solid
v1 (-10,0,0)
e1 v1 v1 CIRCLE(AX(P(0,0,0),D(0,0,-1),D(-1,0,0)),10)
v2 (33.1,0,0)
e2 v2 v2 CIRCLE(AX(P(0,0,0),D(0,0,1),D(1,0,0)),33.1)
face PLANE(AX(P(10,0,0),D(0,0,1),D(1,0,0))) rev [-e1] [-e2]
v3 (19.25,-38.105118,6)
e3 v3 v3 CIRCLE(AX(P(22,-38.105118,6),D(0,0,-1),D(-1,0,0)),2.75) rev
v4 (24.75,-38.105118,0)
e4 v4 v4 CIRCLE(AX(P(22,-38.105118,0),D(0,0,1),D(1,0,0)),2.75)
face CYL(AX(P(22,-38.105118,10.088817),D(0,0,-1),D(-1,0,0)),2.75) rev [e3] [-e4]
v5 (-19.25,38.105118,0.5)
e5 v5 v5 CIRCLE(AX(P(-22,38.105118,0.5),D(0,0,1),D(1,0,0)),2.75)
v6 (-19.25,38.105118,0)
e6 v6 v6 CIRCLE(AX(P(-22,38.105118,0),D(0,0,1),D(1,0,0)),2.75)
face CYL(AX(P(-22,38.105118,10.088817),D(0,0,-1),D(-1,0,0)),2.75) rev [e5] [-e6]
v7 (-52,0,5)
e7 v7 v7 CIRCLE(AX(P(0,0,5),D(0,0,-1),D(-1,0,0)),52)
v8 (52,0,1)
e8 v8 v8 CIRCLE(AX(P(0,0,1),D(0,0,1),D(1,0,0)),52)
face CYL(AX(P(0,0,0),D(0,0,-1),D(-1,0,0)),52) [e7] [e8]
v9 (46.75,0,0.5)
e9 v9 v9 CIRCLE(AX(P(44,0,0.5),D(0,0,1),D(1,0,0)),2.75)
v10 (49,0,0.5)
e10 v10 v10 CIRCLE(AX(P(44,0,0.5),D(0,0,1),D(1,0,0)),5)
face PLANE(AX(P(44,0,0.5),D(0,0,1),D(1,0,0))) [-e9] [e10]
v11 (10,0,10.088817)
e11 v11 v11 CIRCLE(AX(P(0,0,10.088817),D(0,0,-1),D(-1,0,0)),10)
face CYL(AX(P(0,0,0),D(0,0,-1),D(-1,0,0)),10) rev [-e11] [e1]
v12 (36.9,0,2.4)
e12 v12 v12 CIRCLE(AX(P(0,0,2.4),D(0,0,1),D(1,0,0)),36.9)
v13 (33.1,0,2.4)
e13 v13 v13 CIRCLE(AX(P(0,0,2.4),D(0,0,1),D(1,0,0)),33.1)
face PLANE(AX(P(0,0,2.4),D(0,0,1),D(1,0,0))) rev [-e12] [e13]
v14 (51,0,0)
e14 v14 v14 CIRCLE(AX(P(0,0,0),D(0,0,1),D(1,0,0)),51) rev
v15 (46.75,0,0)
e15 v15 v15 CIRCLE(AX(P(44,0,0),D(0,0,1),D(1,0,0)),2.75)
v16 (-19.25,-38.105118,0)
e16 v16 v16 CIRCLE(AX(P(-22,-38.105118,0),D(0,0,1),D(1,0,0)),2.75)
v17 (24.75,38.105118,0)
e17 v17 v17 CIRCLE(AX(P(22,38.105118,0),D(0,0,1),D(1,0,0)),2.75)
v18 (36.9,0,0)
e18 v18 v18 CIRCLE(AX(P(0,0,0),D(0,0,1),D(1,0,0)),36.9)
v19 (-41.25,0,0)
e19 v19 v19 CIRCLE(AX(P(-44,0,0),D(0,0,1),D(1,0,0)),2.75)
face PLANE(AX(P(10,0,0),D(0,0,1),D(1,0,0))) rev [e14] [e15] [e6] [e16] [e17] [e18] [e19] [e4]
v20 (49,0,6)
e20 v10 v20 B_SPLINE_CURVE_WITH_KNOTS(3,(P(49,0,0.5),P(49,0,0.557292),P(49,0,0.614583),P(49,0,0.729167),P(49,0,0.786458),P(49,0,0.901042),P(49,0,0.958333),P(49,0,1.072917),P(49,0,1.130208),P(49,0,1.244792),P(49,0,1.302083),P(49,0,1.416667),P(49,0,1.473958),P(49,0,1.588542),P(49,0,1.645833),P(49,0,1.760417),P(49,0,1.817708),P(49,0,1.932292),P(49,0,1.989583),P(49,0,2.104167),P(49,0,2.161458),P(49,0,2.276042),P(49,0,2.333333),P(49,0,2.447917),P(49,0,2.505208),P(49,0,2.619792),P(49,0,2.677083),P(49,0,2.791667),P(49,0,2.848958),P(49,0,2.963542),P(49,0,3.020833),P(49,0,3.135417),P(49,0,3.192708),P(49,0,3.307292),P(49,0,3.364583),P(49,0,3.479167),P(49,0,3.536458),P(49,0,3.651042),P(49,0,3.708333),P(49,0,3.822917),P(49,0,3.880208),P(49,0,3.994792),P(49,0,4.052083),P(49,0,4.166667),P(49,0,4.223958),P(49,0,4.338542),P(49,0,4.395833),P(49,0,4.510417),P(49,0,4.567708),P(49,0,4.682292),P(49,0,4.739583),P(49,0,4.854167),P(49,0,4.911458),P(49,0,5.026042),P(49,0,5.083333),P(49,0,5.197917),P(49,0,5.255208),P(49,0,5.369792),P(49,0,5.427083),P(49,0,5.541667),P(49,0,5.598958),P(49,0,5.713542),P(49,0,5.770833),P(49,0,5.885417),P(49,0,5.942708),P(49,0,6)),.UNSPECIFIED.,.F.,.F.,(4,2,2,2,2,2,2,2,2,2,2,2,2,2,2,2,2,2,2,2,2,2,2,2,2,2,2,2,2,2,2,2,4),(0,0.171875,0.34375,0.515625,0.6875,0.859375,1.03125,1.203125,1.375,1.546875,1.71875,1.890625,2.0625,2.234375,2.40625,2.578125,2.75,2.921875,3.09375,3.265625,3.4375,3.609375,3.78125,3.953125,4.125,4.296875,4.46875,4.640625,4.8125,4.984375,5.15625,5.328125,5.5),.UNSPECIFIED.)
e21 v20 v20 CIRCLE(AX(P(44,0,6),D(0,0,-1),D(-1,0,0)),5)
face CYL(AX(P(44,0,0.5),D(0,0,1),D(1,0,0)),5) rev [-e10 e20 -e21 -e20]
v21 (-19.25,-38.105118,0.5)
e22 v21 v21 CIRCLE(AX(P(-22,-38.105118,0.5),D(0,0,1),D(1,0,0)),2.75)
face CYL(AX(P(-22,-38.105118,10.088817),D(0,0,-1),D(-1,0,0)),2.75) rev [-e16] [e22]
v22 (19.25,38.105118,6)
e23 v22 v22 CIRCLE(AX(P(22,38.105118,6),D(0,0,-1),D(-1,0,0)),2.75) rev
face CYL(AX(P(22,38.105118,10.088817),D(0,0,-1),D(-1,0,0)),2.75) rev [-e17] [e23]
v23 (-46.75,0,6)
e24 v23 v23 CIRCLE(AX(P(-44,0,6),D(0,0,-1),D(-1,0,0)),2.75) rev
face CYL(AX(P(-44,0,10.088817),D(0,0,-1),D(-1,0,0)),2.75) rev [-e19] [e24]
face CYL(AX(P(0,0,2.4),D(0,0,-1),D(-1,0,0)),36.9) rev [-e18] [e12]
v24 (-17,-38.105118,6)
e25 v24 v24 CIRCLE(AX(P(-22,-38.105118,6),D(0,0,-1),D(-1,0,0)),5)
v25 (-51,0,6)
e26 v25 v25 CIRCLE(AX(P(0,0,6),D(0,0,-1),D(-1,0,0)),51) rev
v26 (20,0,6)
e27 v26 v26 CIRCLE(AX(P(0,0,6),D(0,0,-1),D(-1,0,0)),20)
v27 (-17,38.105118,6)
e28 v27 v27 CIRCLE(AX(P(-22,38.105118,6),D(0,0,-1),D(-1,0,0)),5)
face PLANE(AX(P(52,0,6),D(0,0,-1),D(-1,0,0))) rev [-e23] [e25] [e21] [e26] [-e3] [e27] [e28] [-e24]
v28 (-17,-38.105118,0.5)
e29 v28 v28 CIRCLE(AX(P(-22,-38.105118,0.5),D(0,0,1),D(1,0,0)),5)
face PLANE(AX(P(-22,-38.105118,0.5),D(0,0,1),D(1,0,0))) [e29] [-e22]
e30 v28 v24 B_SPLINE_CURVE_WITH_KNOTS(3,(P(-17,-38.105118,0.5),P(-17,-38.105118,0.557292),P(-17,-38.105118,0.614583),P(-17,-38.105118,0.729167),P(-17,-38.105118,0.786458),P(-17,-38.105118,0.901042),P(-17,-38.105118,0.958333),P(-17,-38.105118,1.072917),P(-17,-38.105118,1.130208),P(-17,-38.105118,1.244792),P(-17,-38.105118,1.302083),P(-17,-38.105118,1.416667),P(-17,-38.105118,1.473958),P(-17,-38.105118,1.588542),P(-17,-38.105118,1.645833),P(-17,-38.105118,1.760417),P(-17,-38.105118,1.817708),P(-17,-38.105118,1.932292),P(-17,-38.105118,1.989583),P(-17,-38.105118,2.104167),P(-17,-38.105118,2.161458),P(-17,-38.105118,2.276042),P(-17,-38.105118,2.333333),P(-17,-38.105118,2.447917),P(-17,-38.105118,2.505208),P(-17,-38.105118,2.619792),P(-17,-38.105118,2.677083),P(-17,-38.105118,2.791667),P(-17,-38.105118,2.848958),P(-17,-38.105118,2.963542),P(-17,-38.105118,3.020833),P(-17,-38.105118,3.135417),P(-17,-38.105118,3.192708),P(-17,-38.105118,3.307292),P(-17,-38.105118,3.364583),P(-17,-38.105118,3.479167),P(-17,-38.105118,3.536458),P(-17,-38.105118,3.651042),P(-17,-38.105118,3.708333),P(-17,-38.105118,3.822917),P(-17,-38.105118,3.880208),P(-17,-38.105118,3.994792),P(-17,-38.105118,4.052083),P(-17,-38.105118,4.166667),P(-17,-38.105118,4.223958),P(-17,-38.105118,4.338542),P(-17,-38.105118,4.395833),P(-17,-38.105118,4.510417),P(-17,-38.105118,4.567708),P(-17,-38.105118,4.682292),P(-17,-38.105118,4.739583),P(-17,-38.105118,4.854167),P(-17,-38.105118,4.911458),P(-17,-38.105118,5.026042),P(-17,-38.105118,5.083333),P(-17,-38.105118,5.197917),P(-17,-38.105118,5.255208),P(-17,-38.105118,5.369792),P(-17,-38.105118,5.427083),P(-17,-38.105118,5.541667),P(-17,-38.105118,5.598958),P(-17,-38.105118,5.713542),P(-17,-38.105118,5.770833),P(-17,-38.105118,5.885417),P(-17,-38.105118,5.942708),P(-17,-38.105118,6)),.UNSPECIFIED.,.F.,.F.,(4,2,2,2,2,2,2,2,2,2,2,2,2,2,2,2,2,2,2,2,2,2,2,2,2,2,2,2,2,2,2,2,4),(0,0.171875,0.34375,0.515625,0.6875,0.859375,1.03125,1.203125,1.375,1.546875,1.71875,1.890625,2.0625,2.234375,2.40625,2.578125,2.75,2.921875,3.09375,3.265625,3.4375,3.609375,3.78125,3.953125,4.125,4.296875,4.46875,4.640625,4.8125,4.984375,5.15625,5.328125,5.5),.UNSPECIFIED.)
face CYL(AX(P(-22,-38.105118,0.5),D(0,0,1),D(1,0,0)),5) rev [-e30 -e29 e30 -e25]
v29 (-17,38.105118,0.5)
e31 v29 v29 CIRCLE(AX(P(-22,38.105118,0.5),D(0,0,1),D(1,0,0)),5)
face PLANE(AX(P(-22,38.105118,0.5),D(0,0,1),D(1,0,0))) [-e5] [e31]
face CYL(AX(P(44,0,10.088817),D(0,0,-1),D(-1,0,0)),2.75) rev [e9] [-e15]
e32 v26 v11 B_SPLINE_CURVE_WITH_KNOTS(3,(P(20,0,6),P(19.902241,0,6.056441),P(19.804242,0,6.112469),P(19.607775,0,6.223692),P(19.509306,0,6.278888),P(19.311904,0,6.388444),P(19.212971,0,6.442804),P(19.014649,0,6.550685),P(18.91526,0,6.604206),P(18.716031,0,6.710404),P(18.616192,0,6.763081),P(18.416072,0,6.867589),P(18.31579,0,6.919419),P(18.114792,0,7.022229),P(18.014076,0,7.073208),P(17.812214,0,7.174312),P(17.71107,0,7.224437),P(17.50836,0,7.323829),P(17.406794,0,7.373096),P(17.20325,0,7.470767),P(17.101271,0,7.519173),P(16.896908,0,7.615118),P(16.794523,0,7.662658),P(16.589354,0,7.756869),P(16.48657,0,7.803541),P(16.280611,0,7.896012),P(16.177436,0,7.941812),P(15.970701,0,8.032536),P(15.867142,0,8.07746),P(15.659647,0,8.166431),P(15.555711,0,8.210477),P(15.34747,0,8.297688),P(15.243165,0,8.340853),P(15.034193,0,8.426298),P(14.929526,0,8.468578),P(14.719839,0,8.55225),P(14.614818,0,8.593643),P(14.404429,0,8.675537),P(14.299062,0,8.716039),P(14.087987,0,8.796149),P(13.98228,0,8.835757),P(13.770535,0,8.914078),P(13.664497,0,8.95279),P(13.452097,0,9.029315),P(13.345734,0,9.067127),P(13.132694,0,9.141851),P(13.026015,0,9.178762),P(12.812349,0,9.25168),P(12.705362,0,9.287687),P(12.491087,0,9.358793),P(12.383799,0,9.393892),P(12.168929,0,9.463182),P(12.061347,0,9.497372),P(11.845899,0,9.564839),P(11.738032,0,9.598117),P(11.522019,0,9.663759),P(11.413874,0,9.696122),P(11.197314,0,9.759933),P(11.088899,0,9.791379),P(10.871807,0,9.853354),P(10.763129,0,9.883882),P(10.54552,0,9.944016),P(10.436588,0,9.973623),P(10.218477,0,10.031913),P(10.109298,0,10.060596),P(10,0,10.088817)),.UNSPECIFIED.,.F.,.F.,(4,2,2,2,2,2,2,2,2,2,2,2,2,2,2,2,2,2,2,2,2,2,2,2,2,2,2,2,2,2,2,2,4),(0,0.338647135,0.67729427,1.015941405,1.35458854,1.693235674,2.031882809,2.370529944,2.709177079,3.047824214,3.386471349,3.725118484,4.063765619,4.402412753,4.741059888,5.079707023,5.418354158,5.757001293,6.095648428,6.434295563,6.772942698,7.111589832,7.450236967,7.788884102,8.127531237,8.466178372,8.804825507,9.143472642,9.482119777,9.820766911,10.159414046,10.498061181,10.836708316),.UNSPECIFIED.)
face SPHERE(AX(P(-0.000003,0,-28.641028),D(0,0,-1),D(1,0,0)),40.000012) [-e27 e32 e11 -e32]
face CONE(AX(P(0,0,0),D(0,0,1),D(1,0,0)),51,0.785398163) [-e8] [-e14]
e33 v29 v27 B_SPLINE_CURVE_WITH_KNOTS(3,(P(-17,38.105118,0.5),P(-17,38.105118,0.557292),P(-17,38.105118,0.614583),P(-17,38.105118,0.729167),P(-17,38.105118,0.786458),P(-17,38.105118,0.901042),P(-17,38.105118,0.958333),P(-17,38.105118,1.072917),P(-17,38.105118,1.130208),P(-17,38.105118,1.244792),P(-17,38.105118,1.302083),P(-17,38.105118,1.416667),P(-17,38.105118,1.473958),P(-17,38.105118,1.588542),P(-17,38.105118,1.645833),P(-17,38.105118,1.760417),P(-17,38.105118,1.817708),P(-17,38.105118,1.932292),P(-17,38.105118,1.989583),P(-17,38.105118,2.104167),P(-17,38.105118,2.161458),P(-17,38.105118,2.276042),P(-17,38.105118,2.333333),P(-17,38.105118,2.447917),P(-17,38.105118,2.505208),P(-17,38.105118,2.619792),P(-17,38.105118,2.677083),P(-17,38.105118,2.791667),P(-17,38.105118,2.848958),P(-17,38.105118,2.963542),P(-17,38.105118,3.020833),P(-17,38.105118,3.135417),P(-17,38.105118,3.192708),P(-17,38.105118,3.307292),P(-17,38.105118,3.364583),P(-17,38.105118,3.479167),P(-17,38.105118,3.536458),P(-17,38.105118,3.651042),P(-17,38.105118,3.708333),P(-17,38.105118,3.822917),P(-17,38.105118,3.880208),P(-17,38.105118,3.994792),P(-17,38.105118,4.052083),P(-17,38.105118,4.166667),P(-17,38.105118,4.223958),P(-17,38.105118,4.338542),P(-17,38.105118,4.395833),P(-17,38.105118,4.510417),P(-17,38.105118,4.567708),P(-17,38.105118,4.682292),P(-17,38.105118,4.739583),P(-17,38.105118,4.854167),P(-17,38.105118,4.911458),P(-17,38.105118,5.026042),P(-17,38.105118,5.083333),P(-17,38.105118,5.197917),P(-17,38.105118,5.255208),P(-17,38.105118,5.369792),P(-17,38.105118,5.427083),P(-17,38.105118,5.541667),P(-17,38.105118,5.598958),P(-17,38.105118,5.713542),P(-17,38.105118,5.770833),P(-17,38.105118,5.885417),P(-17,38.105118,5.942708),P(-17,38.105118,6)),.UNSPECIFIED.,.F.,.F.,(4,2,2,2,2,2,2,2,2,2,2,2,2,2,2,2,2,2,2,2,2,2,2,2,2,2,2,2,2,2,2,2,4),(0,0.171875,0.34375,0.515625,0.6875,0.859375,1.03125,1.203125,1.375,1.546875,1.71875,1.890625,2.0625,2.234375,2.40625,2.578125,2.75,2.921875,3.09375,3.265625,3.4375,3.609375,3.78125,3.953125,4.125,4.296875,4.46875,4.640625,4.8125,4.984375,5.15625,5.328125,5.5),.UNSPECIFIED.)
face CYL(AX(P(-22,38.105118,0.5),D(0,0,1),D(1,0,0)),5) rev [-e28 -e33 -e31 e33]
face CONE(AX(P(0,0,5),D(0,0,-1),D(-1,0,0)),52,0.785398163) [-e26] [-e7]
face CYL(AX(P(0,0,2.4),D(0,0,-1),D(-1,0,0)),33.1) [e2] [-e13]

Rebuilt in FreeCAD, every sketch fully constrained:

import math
import FreeCAD as App
import Part
import Sketcher
from FreeCAD import Vector


def edges_at(feature, points):
    """Names of the edges that pass closest to the given points."""
    edges = feature.Shape.Edges
    near = lambda p: min(range(len(edges)), key=lambda i: edges[i].distToShape(Part.Vertex(*p))[0])
    return sorted({f"Edge{near(p) + 1}" for p in points})

doc = App.newDocument("Part")
body = doc.addObject("PartDesign::Body", "Body")

# Sketch on XZ plane
sketch1 = body.newObject("Sketcher::SketchObject", "Sketch")
sketch1.AttachmentSupport = (doc.getObject("XZ_Plane"), [""])
sketch1.MapMode = "FlatFace"
sketch1.addGeometry(Part.LineSegment(Vector(52, 0, 0), Vector(10, 0, 0)), False)
sketch1.addGeometry(Part.LineSegment(Vector(10, 0, 0), Vector(10, 10, 0)), False)
sketch1.addGeometry(Part.ArcOfCircle(Part.Circle(Vector(0, -29, 0), Vector(0, 0, 1), 40), math.radians(60), math.radians(75.52)), False)
sketch1.addGeometry(Part.LineSegment(Vector(20, 6, 0), Vector(52, 6, 0)), False)
sketch1.addGeometry(Part.LineSegment(Vector(52, 6, 0), Vector(52, 0, 0)), False)
sketch1.addConstraint(Sketcher.Constraint("Coincident", 0, 2, 1, 1))
sketch1.addConstraint(Sketcher.Constraint("Coincident", 1, 2, 2, 2))
sketch1.addConstraint(Sketcher.Constraint("Coincident", 2, 1, 3, 1))
sketch1.addConstraint(Sketcher.Constraint("Coincident", 3, 2, 4, 1))
sketch1.addConstraint(Sketcher.Constraint("Coincident", 4, 2, 0, 1))
sketch1.addConstraint(Sketcher.Constraint("Horizontal", 0))
sketch1.addConstraint(Sketcher.Constraint("Vertical", 1))
sketch1.addConstraint(Sketcher.Constraint("Horizontal", 3))
sketch1.addConstraint(Sketcher.Constraint("Vertical", 4))
sketch1.addConstraint(Sketcher.Constraint("PointOnObject", 0, 2, -1))
sketch1.addConstraint(Sketcher.Constraint("DistanceX", 0, 2, 0, 1, 42.0))
sketch1.addConstraint(Sketcher.Constraint("DistanceX", 3, 1, 3, 2, 32.0))
sketch1.addConstraint(Sketcher.Constraint("DistanceY", 4, 2, 4, 1, 6.0))
sketch1.addConstraint(Sketcher.Constraint("DistanceX", -1, 1, 0, 2, 10.0))
sketch1.addConstraint(Sketcher.Constraint("Radius", 2, 40.000012))
sketch1.addConstraint(Sketcher.Constraint("DistanceY", 1, 1, 1, 2, 10.088817))
revolution = body.newObject("PartDesign::Revolution", "Revolution")
revolution.Profile = sketch1
revolution.ReferenceAxis = (sketch1, ["V_Axis"])
revolution.Angle = 360

# Sketch on XY plane
sketch2 = body.newObject("Sketcher::SketchObject", "Sketch001")
sketch2.AttachmentSupport = (doc.getObject("XY_Plane"), [""])
sketch2.MapMode = "FlatFace"
sketch2.addGeometry(Part.Circle(Vector(44, 0, 0), Vector(0, 0, 1), 2.8), False)
sketch2.addConstraint(Sketcher.Constraint("PointOnObject", 0, 3, -1))
sketch2.addConstraint(Sketcher.Constraint("Diameter", 0, 5.5))
sketch2.addConstraint(Sketcher.Constraint("DistanceX", -1, 1, 0, 3, 44.0))
pocket1 = body.newObject("PartDesign::Pocket", "Pocket")
pocket1.Profile = sketch2
pocket1.Type = "ThroughAll"
pocket1.Reversed = True

# Sketch on XY plane
sketch3 = body.newObject("Sketcher::SketchObject", "Sketch002")
sketch3.AttachmentSupport = (doc.getObject("XY_Plane"), [""])
sketch3.MapMode = "FlatFace"
sketch3.addGeometry(Part.Circle(Vector(-22, 38.1, 0), Vector(0, 0, 1), 2.8), False)
sketch3.addConstraint(Sketcher.Constraint("Diameter", 0, 5.5))
sketch3.addConstraint(Sketcher.Constraint("DistanceX", 0, 3, -1, 1, 22.0))
sketch3.addConstraint(Sketcher.Constraint("DistanceY", -1, 1, 0, 3, 38.105118))
pocket2 = body.newObject("PartDesign::Pocket", "Pocket001")
pocket2.Profile = sketch3
pocket2.Type = "ThroughAll"
pocket2.Reversed = True

# Sketch on XY plane
sketch4 = body.newObject("Sketcher::SketchObject", "Sketch003")
sketch4.AttachmentSupport = (doc.getObject("XY_Plane"), [""])
sketch4.MapMode = "FlatFace"
sketch4.addGeometry(Part.Circle(Vector(-22, -38.1, 0), Vector(0, 0, 1), 2.8), False)
sketch4.addConstraint(Sketcher.Constraint("Diameter", 0, 5.5))
sketch4.addConstraint(Sketcher.Constraint("DistanceX", 0, 3, -1, 1, 22.0))
sketch4.addConstraint(Sketcher.Constraint("DistanceY", 0, 3, -1, 1, 38.105118))
pocket3 = body.newObject("PartDesign::Pocket", "Pocket002")
pocket3.Profile = sketch4
pocket3.Type = "ThroughAll"
pocket3.Reversed = True

# Sketch on XY plane
sketch5 = body.newObject("Sketcher::SketchObject", "Sketch004")
sketch5.AttachmentSupport = (doc.getObject("XY_Plane"), [""])
sketch5.MapMode = "FlatFace"
sketch5.addGeometry(Part.Circle(Vector(22, 38.1, 0), Vector(0, 0, 1), 2.8), False)
sketch5.addConstraint(Sketcher.Constraint("Diameter", 0, 5.5))
sketch5.addConstraint(Sketcher.Constraint("DistanceX", -1, 1, 0, 3, 22.0))
sketch5.addConstraint(Sketcher.Constraint("DistanceY", -1, 1, 0, 3, 38.105118))
pocket4 = body.newObject("PartDesign::Pocket", "Pocket003")
pocket4.Profile = sketch5
pocket4.Type = "ThroughAll"
pocket4.Reversed = True

# Sketch on XY plane
sketch6 = body.newObject("Sketcher::SketchObject", "Sketch005")
sketch6.AttachmentSupport = (doc.getObject("XY_Plane"), [""])
sketch6.MapMode = "FlatFace"
sketch6.addGeometry(Part.Circle(Vector(-44, 0, 0), Vector(0, 0, 1), 2.8), False)
sketch6.addConstraint(Sketcher.Constraint("PointOnObject", 0, 3, -1))
sketch6.addConstraint(Sketcher.Constraint("Diameter", 0, 5.5))
sketch6.addConstraint(Sketcher.Constraint("DistanceX", 0, 3, -1, 1, 44.0))
pocket5 = body.newObject("PartDesign::Pocket", "Pocket004")
pocket5.Profile = sketch6
pocket5.Type = "ThroughAll"
pocket5.Reversed = True

# Sketch on XY plane
sketch7 = body.newObject("Sketcher::SketchObject", "Sketch006")
sketch7.AttachmentSupport = (doc.getObject("XY_Plane"), [""])
sketch7.MapMode = "FlatFace"
sketch7.addGeometry(Part.Circle(Vector(22, -38.1, 0), Vector(0, 0, 1), 2.8), False)
sketch7.addConstraint(Sketcher.Constraint("Diameter", 0, 5.5))
sketch7.addConstraint(Sketcher.Constraint("DistanceX", -1, 1, 0, 3, 22.0))
sketch7.addConstraint(Sketcher.Constraint("DistanceY", 0, 3, -1, 1, 38.105118))
pocket6 = body.newObject("PartDesign::Pocket", "Pocket005")
pocket6.Profile = sketch7
pocket6.Type = "ThroughAll"
pocket6.Reversed = True

# Sketch on XY plane
sketch8 = body.newObject("Sketcher::SketchObject", "Sketch007")
sketch8.AttachmentSupport = (doc.getObject("XY_Plane"), [""])
sketch8.MapMode = "FlatFace"
sketch8.AttachmentOffset = App.Placement(Vector(0, 0, 3.75), App.Rotation())
sketch8.addGeometry(Part.Circle(Vector(44, 0, 0), Vector(0, 0, 1), 5), False)
sketch8.addConstraint(Sketcher.Constraint("PointOnObject", 0, 3, -1))
sketch8.addConstraint(Sketcher.Constraint("Diameter", 0, 10.0))
sketch8.addConstraint(Sketcher.Constraint("DistanceX", -1, 1, 0, 3, 44.0))
pocket7 = body.newObject("PartDesign::Pocket", "Pocket006")
pocket7.Profile = sketch8
pocket7.Length = 6.5
pocket7.Midplane = True

# Sketch on XY plane
sketch9 = body.newObject("Sketcher::SketchObject", "Sketch008")
sketch9.AttachmentSupport = (doc.getObject("XY_Plane"), [""])
sketch9.MapMode = "FlatFace"
sketch9.AttachmentOffset = App.Placement(Vector(0, 0, 3.75), App.Rotation())
sketch9.addGeometry(Part.Circle(Vector(-22, 38, 0), Vector(0, 0, 1), 5), False)
sketch9.addConstraint(Sketcher.Constraint("Diameter", 0, 10.0))
sketch9.addConstraint(Sketcher.Constraint("DistanceX", 0, 3, -1, 1, 22.0))
sketch9.addConstraint(Sketcher.Constraint("DistanceY", -1, 1, 0, 3, 38.105118))
pocket8 = body.newObject("PartDesign::Pocket", "Pocket007")
pocket8.Profile = sketch9
pocket8.Length = 6.5
pocket8.Midplane = True

# Sketch on XY plane
sketch10 = body.newObject("Sketcher::SketchObject", "Sketch009")
sketch10.AttachmentSupport = (doc.getObject("XY_Plane"), [""])
sketch10.MapMode = "FlatFace"
sketch10.AttachmentOffset = App.Placement(Vector(0, 0, 3.75), App.Rotation())
sketch10.addGeometry(Part.Circle(Vector(-22, -38, 0), Vector(0, 0, 1), 5), False)
sketch10.addConstraint(Sketcher.Constraint("Diameter", 0, 10.0))
sketch10.addConstraint(Sketcher.Constraint("DistanceX", 0, 3, -1, 1, 22.0))
sketch10.addConstraint(Sketcher.Constraint("DistanceY", 0, 3, -1, 1, 38.105118))
pocket9 = body.newObject("PartDesign::Pocket", "Pocket008")
pocket9.Profile = sketch10
pocket9.Length = 6.5
pocket9.Midplane = True

# Sketch on XY plane
sketch11 = body.newObject("Sketcher::SketchObject", "Sketch010")
sketch11.AttachmentSupport = (doc.getObject("XY_Plane"), [""])
sketch11.MapMode = "FlatFace"
sketch11.addGeometry(Part.Circle(Vector(0, 0, 0), Vector(0, 0, 1), 37), False)
sketch11.addGeometry(Part.Circle(Vector(0, 0, 0), Vector(0, 0, 1), 33), False)
sketch11.addConstraint(Sketcher.Constraint("Coincident", 0, 3, -1, 1))
sketch11.addConstraint(Sketcher.Constraint("Coincident", 1, 3, -1, 1))
sketch11.addConstraint(Sketcher.Constraint("Diameter", 0, 73.8))
sketch11.addConstraint(Sketcher.Constraint("Diameter", 1, 66.2))
pocket10 = body.newObject("PartDesign::Pocket", "Pocket009")
pocket10.Profile = sketch11
pocket10.Length = 2.4
pocket10.Reversed = True
doc.recompute()

chamfer = body.newObject("PartDesign::Chamfer", "Chamfer")
chamfer.Base = (pocket10, edges_at(pocket10, [(52, 0, 6), (52, 0, 0)]))
chamfer.Size = 1

doc.recompute()
